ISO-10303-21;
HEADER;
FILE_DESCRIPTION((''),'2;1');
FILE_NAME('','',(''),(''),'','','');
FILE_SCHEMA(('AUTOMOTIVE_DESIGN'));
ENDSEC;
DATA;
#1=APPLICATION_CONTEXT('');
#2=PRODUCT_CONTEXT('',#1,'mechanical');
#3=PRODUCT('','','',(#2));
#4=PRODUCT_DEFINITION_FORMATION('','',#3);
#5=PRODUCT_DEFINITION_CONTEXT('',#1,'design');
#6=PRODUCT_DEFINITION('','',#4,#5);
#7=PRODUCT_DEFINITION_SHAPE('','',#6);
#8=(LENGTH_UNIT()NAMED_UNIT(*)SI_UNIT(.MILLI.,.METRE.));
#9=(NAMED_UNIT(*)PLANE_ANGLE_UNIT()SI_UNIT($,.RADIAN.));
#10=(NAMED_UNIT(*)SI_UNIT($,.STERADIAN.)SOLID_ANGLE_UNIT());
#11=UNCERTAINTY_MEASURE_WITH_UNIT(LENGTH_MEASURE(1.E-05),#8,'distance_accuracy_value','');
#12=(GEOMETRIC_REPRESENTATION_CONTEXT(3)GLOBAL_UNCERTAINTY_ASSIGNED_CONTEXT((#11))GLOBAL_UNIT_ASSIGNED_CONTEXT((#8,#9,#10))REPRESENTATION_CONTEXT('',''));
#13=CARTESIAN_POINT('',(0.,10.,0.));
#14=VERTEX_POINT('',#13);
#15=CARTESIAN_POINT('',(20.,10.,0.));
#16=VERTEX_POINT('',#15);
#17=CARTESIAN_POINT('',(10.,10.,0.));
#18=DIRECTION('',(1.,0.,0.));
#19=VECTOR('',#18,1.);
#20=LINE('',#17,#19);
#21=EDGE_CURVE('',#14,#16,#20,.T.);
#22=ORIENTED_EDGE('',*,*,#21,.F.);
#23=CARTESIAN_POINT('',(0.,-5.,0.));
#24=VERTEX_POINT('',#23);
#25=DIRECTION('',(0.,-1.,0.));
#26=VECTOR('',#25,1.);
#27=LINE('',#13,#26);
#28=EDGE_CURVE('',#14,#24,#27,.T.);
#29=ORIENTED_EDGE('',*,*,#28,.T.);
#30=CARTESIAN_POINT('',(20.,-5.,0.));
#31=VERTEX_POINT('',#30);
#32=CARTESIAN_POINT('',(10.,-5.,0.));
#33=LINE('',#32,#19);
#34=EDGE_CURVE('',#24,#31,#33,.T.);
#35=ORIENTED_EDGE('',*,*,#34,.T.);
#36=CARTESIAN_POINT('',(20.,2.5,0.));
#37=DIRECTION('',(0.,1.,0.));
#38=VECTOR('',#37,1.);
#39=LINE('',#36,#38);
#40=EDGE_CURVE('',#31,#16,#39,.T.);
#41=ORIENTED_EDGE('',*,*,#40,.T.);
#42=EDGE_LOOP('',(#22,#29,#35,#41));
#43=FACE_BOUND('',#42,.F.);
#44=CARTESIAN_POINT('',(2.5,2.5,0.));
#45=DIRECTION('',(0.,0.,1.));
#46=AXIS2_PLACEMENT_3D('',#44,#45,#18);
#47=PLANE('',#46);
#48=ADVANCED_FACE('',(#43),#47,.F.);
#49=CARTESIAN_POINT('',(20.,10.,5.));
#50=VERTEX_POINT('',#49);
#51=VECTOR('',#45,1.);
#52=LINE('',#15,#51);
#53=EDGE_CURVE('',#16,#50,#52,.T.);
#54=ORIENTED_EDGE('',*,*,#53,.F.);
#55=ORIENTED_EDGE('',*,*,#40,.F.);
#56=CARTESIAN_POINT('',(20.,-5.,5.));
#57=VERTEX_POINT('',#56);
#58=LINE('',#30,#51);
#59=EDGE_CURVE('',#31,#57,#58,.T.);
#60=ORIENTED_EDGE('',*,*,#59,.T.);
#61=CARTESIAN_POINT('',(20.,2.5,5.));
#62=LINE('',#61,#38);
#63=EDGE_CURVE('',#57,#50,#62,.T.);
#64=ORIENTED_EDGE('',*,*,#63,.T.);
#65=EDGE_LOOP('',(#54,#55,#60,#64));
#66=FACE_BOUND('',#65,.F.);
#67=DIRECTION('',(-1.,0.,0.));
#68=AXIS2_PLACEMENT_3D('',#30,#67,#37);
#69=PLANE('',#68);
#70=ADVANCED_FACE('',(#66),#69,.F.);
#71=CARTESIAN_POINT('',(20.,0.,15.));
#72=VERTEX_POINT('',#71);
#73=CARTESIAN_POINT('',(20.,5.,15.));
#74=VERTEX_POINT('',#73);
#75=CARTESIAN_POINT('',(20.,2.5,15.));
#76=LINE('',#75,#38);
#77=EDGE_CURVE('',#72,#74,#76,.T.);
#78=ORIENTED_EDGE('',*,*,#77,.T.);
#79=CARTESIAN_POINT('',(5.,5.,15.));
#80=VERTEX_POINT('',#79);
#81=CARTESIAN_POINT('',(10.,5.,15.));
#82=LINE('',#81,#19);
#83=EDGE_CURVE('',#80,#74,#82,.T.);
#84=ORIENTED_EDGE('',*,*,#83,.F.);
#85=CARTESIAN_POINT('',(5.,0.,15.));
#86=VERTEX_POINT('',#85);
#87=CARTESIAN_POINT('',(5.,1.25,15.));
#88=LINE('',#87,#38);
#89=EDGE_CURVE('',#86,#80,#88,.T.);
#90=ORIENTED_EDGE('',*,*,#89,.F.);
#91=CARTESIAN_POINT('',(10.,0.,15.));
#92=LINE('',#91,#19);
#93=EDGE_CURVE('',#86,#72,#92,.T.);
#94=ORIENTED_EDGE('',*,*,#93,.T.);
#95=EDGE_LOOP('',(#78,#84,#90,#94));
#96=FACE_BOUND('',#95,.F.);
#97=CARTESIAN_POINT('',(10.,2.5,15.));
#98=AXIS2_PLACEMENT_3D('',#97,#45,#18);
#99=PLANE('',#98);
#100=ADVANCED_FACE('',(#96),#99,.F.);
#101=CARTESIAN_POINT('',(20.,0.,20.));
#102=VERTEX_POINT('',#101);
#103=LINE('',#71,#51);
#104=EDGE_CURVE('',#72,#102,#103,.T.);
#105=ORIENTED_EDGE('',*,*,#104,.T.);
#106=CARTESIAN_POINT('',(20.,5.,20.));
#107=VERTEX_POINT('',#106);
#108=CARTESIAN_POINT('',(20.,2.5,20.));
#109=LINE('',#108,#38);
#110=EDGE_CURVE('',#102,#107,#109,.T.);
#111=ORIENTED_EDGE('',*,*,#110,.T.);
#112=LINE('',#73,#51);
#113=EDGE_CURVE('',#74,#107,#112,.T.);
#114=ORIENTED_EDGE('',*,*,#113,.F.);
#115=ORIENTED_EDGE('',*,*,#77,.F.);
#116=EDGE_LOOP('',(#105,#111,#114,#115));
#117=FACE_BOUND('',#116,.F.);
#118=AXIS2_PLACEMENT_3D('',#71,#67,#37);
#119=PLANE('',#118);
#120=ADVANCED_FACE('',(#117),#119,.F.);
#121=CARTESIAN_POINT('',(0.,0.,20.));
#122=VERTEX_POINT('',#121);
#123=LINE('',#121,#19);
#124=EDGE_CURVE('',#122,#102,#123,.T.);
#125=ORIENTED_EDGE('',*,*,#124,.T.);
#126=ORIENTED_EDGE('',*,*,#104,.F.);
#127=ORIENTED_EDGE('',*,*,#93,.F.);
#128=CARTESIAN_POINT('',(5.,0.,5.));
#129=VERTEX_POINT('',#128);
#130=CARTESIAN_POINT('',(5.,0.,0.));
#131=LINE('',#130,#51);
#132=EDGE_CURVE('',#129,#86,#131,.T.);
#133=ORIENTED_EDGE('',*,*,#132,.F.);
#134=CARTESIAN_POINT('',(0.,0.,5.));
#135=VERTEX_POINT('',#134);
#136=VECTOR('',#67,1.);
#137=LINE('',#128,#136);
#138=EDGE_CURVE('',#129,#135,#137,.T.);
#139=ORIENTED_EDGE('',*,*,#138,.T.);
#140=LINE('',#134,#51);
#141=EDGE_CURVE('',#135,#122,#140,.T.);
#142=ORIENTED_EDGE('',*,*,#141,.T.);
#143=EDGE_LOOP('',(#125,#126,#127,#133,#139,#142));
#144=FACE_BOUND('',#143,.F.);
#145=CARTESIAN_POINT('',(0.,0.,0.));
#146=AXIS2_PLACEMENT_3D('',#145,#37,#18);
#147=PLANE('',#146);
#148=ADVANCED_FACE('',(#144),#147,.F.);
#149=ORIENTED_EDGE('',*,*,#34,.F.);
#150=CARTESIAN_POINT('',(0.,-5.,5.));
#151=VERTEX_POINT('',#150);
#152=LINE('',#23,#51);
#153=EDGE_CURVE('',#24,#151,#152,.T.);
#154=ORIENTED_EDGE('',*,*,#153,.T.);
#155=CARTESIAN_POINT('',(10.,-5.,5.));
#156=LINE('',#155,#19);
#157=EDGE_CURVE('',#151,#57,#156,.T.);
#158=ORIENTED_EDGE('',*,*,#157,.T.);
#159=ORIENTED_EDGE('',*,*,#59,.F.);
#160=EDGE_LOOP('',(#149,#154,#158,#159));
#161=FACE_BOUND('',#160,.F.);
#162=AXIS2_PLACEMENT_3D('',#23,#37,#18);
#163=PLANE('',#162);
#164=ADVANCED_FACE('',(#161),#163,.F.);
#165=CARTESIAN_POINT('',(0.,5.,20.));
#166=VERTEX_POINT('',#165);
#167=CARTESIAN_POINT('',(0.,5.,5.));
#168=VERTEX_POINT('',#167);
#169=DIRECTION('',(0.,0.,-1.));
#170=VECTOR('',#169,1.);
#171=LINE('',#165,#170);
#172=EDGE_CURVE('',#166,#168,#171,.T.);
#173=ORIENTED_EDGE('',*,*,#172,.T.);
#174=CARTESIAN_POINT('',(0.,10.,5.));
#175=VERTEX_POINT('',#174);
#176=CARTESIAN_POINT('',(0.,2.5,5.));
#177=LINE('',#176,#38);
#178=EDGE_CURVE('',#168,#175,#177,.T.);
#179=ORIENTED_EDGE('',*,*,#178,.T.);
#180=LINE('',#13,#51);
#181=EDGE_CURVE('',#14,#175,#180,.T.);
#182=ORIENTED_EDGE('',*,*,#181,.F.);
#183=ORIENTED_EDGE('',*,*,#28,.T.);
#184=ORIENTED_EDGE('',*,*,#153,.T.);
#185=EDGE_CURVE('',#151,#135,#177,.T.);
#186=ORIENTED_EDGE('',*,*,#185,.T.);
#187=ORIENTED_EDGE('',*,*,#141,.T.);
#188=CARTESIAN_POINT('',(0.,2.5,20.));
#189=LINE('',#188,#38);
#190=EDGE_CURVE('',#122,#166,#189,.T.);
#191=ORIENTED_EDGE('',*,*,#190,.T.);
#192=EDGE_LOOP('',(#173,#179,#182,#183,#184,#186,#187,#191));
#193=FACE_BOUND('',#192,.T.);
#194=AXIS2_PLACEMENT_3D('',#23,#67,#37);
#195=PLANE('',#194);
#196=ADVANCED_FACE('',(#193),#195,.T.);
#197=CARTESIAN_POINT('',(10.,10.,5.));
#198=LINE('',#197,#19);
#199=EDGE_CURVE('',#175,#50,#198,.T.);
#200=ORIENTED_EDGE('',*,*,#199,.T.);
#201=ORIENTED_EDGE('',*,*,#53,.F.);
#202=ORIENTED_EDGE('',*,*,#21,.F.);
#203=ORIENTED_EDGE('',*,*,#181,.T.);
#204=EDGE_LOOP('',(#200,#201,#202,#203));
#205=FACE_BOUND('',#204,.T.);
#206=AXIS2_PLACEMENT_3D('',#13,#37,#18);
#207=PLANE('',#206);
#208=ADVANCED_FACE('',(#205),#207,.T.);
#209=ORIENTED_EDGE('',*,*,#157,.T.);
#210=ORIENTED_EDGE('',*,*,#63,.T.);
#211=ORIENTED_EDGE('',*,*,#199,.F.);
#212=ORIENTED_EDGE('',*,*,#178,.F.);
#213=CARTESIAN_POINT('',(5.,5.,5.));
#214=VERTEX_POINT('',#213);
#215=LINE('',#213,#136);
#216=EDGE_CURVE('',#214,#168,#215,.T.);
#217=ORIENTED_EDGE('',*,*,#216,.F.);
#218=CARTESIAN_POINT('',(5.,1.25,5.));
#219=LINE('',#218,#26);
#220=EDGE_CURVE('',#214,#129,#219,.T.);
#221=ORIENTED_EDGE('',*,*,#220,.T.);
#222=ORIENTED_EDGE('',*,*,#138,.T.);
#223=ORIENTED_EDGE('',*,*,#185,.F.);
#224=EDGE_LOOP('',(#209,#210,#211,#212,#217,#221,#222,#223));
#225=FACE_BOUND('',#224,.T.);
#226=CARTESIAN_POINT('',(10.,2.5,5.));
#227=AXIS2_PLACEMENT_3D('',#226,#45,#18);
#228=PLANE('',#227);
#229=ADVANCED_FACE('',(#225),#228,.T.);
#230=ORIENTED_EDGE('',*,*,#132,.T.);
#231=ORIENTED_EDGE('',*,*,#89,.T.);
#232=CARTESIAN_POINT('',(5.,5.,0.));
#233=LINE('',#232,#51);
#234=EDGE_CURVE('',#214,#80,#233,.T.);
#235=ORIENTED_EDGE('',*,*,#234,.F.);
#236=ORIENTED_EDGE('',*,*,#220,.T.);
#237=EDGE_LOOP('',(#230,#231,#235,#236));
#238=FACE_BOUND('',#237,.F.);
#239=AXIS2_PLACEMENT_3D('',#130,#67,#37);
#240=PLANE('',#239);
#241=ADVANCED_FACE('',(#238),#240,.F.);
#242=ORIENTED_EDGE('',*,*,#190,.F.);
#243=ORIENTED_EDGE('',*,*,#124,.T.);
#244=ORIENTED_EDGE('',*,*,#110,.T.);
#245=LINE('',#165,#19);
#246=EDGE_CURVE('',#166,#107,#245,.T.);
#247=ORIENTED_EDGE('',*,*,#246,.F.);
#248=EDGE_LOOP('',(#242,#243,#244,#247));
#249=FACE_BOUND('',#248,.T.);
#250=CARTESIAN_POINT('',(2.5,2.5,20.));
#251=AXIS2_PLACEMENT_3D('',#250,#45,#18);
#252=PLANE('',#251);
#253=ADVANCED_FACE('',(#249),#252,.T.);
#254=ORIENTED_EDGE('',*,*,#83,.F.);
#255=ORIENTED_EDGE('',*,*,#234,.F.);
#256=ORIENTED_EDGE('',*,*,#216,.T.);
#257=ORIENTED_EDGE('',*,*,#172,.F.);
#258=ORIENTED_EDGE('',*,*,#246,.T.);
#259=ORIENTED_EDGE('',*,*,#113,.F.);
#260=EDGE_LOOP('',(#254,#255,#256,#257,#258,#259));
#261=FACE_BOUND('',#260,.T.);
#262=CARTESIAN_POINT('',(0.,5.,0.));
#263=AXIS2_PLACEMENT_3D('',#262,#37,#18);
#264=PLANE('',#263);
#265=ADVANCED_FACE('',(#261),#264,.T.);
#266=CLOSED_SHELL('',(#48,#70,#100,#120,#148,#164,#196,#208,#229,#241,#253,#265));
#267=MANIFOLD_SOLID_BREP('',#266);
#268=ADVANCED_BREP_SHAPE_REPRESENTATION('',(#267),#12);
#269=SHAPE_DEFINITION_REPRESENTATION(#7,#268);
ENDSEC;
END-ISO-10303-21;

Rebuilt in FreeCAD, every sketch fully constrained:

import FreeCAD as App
import Part
import Sketcher

V = App.Vector

doc = App.newDocument("Part")
body = doc.addObject("PartDesign::Body", "Body")

sketch1 = body.newObject("Sketcher::SketchObject", "Sketch")
sketch1.AttachmentSupport = (doc.getObject("XY_Plane"), [""])
sketch1.MapMode = "FlatFace"
sketch1.addGeometry(Part.LineSegment(V(0, 5, 0), V(0, 0, 0)), False)
sketch1.addGeometry(Part.LineSegment(V(0, 0, 0), V(5, 0, 0)), False)
sketch1.addGeometry(Part.LineSegment(V(5, 0, 0), V(5, 5, 0)), False)
sketch1.addGeometry(Part.LineSegment(V(5, 5, 0), V(0, 5, 0)), False)
sketch1.addConstraint(Sketcher.Constraint("Coincident", 0, 2, 1, 1))
sketch1.addConstraint(Sketcher.Constraint("Coincident", 1, 2, 2, 1))
sketch1.addConstraint(Sketcher.Constraint("Coincident", 2, 2, 3, 1))
sketch1.addConstraint(Sketcher.Constraint("Coincident", 3, 2, 0, 1))
sketch1.addConstraint(Sketcher.Constraint("Vertical", 0))
sketch1.addConstraint(Sketcher.Constraint("Horizontal", 1))
sketch1.addConstraint(Sketcher.Constraint("Vertical", 2))
sketch1.addConstraint(Sketcher.Constraint("Horizontal", 3))
sketch1.addConstraint(Sketcher.Constraint("Coincident", 0, 2, -1, 1))
sketch1.addConstraint(Sketcher.Constraint("Equal", 3, 0))
sketch1.addConstraint(Sketcher.Constraint("DistanceX", 1, 1, 1, 2, 5.0))
pad1 = body.newObject("PartDesign::Pad", "Pad")
pad1.Profile = sketch1
pad1.Length = 20
body2 = doc.addObject("PartDesign::Body", "Body001")

sketch2 = body2.newObject("Sketcher::SketchObject", "Sketch001")
sketch2.AttachmentSupport = (doc.getObject("XY_Plane001"), [""])
sketch2.MapMode = "FlatFace"
sketch2.AttachmentOffset = App.Placement(V(0, 0, 15), App.Rotation())
sketch2.addGeometry(Part.LineSegment(V(0, 5, 0), V(0, 0, 0)), False)
sketch2.addGeometry(Part.LineSegment(V(0, 0, 0), V(20, 0, 0)), False)
sketch2.addGeometry(Part.LineSegment(V(20, 0, 0), V(20, 5, 0)), False)
sketch2.addGeometry(Part.LineSegment(V(20, 5, 0), V(0, 5, 0)), False)
sketch2.addConstraint(Sketcher.Constraint("Coincident", 0, 2, 1, 1))
sketch2.addConstraint(Sketcher.Constraint("Coincident", 1, 2, 2, 1))
sketch2.addConstraint(Sketcher.Constraint("Coincident", 2, 2, 3, 1))
sketch2.addConstraint(Sketcher.Constraint("Coincident", 3, 2, 0, 1))
sketch2.addConstraint(Sketcher.Constraint("Vertical", 0))
sketch2.addConstraint(Sketcher.Constraint("Horizontal", 1))
sketch2.addConstraint(Sketcher.Constraint("Vertical", 2))
sketch2.addConstraint(Sketcher.Constraint("Horizontal", 3))
sketch2.addConstraint(Sketcher.Constraint("Coincident", 0, 2, -1, 1))
sketch2.addConstraint(Sketcher.Constraint("DistanceX", 1, 1, 1, 2, 20.0))
sketch2.addConstraint(Sketcher.Constraint("DistanceY", 0, 2, 0, 1, 5.0))
pad2 = body2.newObject("PartDesign::Pad", "Pad001")
pad2.Profile = sketch2
pad2.Length = 5
body3 = doc.addObject("PartDesign::Body", "Body002")

sketch3 = body3.newObject("Sketcher::SketchObject", "Sketch002")
sketch3.AttachmentSupport = (doc.getObject("XY_Plane002"), [""])
sketch3.MapMode = "FlatFace"
sketch3.addGeometry(Part.LineSegment(V(0, 10, 0), V(0, -5, 0)), False)
sketch3.addGeometry(Part.LineSegment(V(0, -5, 0), V(20, -5, 0)), False)
sketch3.addGeometry(Part.LineSegment(V(20, -5, 0), V(20, 10, 0)), False)
sketch3.addGeometry(Part.LineSegment(V(20, 10, 0), V(0, 10, 0)), False)
sketch3.addConstraint(Sketcher.Constraint("Coincident", 0, 2, 1, 1))
sketch3.addConstraint(Sketcher.Constraint("Coincident", 1, 2, 2, 1))
sketch3.addConstraint(Sketcher.Constraint("Coincident", 2, 2, 3, 1))
sketch3.addConstraint(Sketcher.Constraint("Coincident", 3, 2, 0, 1))
sketch3.addConstraint(Sketcher.Constraint("Vertical", 0))
sketch3.addConstraint(Sketcher.Constraint("Horizontal", 1))
sketch3.addConstraint(Sketcher.Constraint("Vertical", 2))
sketch3.addConstraint(Sketcher.Constraint("Horizontal", 3))
sketch3.addConstraint(Sketcher.Constraint("PointOnObject", 0, 2, -2))
sketch3.addConstraint(Sketcher.Constraint("DistanceX", 1, 1, 1, 2, 20.0))
sketch3.addConstraint(Sketcher.Constraint("DistanceY", 0, 2, 0, 1, 15.0))
sketch3.addConstraint(Sketcher.Constraint("DistanceY", 0, 2, -1, 1, 5.0))
pad3 = body3.newObject("PartDesign::Pad", "Pad002")
pad3.Profile = sketch3
pad3.Length = 5
doc.recompute()

boolean = body3.newObject("PartDesign::Boolean", "Boolean")
boolean.Type = "Fuse"
boolean.addObjects([body])
doc.recompute()

boolean2 = body3.newObject("PartDesign::Boolean", "Boolean001")
boolean2.Type = "Fuse"
boolean2.addObjects([body2])

doc.recompute()
